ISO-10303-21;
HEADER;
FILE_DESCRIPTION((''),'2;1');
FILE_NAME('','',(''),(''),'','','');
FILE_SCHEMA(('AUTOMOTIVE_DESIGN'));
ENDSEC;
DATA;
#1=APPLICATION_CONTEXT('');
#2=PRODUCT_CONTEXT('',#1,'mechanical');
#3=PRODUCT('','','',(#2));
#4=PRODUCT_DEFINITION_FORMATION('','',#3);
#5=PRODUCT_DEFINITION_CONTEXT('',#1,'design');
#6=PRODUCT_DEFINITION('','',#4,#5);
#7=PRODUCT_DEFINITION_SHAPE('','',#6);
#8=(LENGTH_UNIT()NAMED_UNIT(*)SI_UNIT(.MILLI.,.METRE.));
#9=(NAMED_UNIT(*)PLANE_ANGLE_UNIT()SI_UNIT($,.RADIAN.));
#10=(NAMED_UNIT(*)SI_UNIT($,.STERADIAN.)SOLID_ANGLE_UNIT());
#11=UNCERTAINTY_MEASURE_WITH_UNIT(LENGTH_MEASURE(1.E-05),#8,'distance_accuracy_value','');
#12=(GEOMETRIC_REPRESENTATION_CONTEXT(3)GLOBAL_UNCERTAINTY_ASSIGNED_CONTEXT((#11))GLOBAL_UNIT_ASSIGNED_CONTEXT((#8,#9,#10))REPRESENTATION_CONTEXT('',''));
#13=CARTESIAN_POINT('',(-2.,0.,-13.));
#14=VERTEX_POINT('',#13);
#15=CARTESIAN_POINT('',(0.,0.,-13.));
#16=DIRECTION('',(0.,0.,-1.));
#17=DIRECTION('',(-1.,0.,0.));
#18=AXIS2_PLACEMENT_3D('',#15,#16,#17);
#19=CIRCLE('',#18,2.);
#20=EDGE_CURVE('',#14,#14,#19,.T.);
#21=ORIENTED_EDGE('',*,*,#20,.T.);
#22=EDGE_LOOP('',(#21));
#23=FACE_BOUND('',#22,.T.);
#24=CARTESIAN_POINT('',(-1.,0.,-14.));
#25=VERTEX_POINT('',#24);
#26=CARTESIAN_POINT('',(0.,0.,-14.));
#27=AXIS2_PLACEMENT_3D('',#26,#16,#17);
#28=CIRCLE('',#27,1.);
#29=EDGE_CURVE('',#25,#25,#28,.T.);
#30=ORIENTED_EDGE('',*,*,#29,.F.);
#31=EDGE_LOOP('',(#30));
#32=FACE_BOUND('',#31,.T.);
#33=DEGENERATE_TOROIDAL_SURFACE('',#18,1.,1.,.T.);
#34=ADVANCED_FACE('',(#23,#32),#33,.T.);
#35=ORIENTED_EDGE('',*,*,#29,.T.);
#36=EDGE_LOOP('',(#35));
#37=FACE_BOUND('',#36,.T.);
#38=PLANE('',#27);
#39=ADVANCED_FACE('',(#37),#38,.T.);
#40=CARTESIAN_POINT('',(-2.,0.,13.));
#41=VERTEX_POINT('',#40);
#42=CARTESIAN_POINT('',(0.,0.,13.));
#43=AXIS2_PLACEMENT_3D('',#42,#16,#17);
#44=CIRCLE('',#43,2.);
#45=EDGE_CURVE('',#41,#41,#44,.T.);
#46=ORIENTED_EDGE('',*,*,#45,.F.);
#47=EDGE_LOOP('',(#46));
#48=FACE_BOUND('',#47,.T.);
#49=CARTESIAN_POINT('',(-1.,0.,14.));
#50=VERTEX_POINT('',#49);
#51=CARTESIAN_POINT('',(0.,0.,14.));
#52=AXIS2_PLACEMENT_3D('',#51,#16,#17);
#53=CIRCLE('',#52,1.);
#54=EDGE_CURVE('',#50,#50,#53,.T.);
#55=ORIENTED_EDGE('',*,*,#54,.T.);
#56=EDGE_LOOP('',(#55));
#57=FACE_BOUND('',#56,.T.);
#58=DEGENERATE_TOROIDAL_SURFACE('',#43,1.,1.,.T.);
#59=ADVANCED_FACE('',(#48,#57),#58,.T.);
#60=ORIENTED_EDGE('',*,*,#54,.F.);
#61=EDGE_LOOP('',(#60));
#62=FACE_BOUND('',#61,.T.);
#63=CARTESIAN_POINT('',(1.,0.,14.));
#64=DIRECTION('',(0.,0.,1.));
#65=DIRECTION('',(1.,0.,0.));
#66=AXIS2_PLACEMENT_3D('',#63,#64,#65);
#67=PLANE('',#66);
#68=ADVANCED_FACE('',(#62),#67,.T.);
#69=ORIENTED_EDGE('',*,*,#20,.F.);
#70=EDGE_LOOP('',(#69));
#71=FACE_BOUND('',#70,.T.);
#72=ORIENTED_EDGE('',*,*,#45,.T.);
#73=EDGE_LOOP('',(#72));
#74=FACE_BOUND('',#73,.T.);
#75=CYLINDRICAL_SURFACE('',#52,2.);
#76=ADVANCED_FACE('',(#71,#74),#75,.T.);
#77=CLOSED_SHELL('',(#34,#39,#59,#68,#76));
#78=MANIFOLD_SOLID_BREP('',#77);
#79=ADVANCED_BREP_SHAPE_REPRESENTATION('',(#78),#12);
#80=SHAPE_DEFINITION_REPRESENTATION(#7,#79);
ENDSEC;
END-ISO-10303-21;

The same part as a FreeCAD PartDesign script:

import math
import FreeCAD as App
import Part
import Sketcher
from FreeCAD import Vector
Q = App.Units.Quantity

doc = App.newDocument("Part")
body = doc.addObject("PartDesign::Body", "Body")

# Sketch on XZ plane
sketch1 = body.newObject("Sketcher::SketchObject", "Sketch")
sketch1.AttachmentSupport = (doc.getObject("XZ_Plane"), [""])
sketch1.MapMode = "FlatFace"
sketch1.addGeometry([
    Part.LineSegment(Vector(1, 14, 0), Vector(0, 14, 0)),  # 0
    Part.LineSegment(Vector(0, 14, 0), Vector(0, -14, 0)),  # 1
    Part.LineSegment(Vector(0, -14, 0), Vector(1, -14, 0)),  # 2
    Part.ArcOfCircle(Part.Circle(Vector(1, -13, 0), Vector(0, 0, 1), 1), math.radians(-90), math.radians(0)),  # 3
    Part.LineSegment(Vector(2, -13, 0), Vector(2, 13, 0)),  # 4
    Part.ArcOfCircle(Part.Circle(Vector(1, 13, 0), Vector(0, 0, 1), 1), math.radians(0), math.radians(90)),  # 5
], False)
sketch1.addConstraint([
    Sketcher.Constraint("Coincident", 0, 2, 1, 1),
    Sketcher.Constraint("Coincident", 1, 2, 2, 1),
    Sketcher.Constraint("Tangent", 2, 2, 3, 1),
    Sketcher.Constraint("Tangent", 3, 2, 4, 1),
    Sketcher.Constraint("Tangent", 4, 2, 5, 1),
    Sketcher.Constraint("Tangent", 5, 2, 0, 1),
    Sketcher.Constraint("Horizontal", 0),
    Sketcher.Constraint("Vertical", 1),
    Sketcher.Constraint("Horizontal", 2),
    Sketcher.Constraint("Vertical", 4),
    Sketcher.Constraint("Equal", 3, 5),
    Sketcher.Constraint("Symmetric", 0, 2, 1, 2, -1, 1),
    Sketcher.Constraint("Radius", 3, Q("1 mm")),
    Sketcher.Constraint("DistanceX", 0, 2, 0, 1, Q("1 mm")),
    Sketcher.Constraint("DistanceY", 1, 2, 1, 1, Q("28 mm")),
])
revolution = body.newObject("PartDesign::Revolution", "Revolution")
revolution.Profile = sketch1
revolution.ReferenceAxis = (sketch1, ["V_Axis"])
revolution.Angle = 360

doc.recompute()
